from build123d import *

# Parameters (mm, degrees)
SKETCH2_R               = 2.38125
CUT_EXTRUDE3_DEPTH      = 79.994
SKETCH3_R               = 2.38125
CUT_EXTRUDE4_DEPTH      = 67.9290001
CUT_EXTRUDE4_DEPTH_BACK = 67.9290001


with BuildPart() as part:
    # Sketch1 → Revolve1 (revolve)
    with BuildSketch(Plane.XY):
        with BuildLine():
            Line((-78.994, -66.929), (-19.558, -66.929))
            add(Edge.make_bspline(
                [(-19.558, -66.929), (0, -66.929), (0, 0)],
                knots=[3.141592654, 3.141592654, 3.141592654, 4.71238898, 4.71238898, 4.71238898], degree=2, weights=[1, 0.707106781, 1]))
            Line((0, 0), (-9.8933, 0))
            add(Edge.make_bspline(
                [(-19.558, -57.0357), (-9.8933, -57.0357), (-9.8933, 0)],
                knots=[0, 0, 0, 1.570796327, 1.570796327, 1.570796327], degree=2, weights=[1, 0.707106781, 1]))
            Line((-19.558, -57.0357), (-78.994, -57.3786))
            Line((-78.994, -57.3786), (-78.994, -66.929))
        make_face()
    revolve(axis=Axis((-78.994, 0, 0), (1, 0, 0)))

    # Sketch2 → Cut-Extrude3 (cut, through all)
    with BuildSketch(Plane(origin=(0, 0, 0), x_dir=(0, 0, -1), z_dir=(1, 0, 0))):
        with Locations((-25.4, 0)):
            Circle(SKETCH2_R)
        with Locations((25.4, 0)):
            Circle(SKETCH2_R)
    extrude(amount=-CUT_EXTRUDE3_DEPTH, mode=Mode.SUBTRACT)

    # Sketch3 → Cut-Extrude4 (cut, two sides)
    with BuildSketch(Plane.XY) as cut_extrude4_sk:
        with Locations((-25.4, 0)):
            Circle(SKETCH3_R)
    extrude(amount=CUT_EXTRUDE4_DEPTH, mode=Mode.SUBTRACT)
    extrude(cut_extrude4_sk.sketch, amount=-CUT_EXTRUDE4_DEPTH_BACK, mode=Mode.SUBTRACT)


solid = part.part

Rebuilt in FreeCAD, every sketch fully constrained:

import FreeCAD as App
import Part
import Sketcher

V = App.Vector
Q = App.Units.Quantity

doc = App.newDocument("Part")
params = doc.addObject("Spreadsheet::Sheet", "Params")
for row, (alias, value) in enumerate([
    ("sketch1_width", "2.34 in"),
    ("sketch1_height", "0.376 in"),
    ("revolution_angle", "360 deg"),
    ("sketch2_diameter", "0.1875 in"),
    ("sketch3_diameter", "0.1875 in"),
], start=1):
    params.set(f"A{row}", alias)
    params.set(f"B{row}", "=" + value)
    params.setAlias(f"B{row}", alias)

body = doc.addObject("PartDesign::Body", "Body")

# Sketch on XY plane
sketch1 = doc.addObject("Sketcher::SketchObject", "Sketch")
body.addObject(sketch1)
sketch1.AttachmentSupport = (doc.XY_Plane, [""])
sketch1.MapMode = "FlatFace"
sketch1.addGeometry([
    Part.LineSegment(V(-78.994, -66.929, 0), V(-19.558, -66.929, 0)),  # 0
    Part.BSplineCurve([V(-19.558, -66.929, 0), V(0, -66.929, 0), V(0, 0, 0)], [3, 3], [3.141592654, 4.71238898], False, 2, [1, 0.707106781, 1], False),  # 1
    Part.LineSegment(V(0, 0, 0), V(-9.8933, 0, 0)),  # 2
    Part.BSplineCurve([V(-19.558, -57.0357, 0), V(-9.8933, -57.0357, 0), V(-9.8933, 0, 0)], [3, 3], [0, 1.570796327], False, 2, [1, 0.707106781, 1], False),  # 3
    Part.LineSegment(V(-19.558, -57.0357, 0), V(-78.994, -57.3786, 0)),  # 4
    Part.LineSegment(V(-78.994, -57.3786, 0), V(-78.994, -66.929, 0)),  # 5
], False)
sketch1.addConstraint([
    Sketcher.Constraint("Block", 1),
    Sketcher.Constraint("Block", 3),
    Sketcher.Constraint("Coincident", 0, 2, 1, 1),
    Sketcher.Constraint("Coincident", 1, 2, 2, 1),
    Sketcher.Constraint("Coincident", 2, 2, 3, 2),
    Sketcher.Constraint("Coincident", 3, 1, 4, 1),
    Sketcher.Constraint("Coincident", 4, 2, 5, 1),
    Sketcher.Constraint("Coincident", 5, 2, 0, 1),
    Sketcher.Constraint("Horizontal", 0),
    Sketcher.Constraint("Vertical", 5),
    Sketcher.Constraint("DistanceX", 0, 1, 0, 2, Q("2.34 in")),
    Sketcher.Constraint("DistanceY", 5, 2, 5, 1, Q("0.376 in")),
])
sketch1.setExpression("Constraints[10]", "Params.sketch1_width")
sketch1.setExpression("Constraints[11]", "Params.sketch1_height")
revolution = doc.addObject("PartDesign::Revolution", "Revolution")
body.addObject(revolution)
revolution.Profile = sketch1
revolution.ReferenceAxis = (sketch1, ["H_Axis"])
revolution.setExpression("Angle", "Params.revolution_angle")

# Sketch on YZ plane
sketch2 = doc.addObject("Sketcher::SketchObject", "Sketch001")
body.addObject(sketch2)
sketch2.AttachmentSupport = (doc.YZ_Plane, [""])
sketch2.MapMode = "FlatFace"
sketch2.addGeometry([
    Part.Circle(V(0, 25.4, 0), V(0, 0, 1), 2.4),
    Part.Circle(V(0, -25.4, 0), V(0, 0, 1), 2.4),
], False)
sketch2.addConstraint([
    Sketcher.Constraint("Equal", 0, 1),
    Sketcher.Constraint("Symmetric", 0, 3, 1, 3, -1, 1),
    Sketcher.Constraint("PointOnObject", 0, 3, -2),
    Sketcher.Constraint("Diameter", 0, Q("0.1875 in")),
    Sketcher.Constraint("DistanceY", -1, 1, 0, 3, Q("1 in")),
])
sketch2.setExpression("Constraints[3]", "Params.sketch2_diameter")
pocket1 = doc.addObject("PartDesign::Pocket", "Pocket")
body.addObject(pocket1)
pocket1.Profile = sketch2
pocket1.Type = "ThroughAll"

# Sketch on XY plane
sketch3 = doc.addObject("Sketcher::SketchObject", "Sketch002")
body.addObject(sketch3)
sketch3.AttachmentSupport = (doc.XY_Plane, [""])
sketch3.MapMode = "FlatFace"
sketch3.addGeometry(Part.Circle(V(-25.4, 0, 0), V(0, 0, 1), 2.4), False)
sketch3.addConstraint([
    Sketcher.Constraint("PointOnObject", 0, 3, -1),
    Sketcher.Constraint("Diameter", 0, Q("0.1875 in")),
    Sketcher.Constraint("DistanceX", 0, 3, -1, 1, Q("1 in")),
])
sketch3.setExpression("Constraints[1]", "Params.sketch3_diameter")
pocket2 = doc.addObject("PartDesign::Pocket", "Pocket001")
body.addObject(pocket2)
pocket2.Profile = sketch3
pocket2.Type = "ThroughAll"
pocket2.Midplane = True

doc.recompute()
